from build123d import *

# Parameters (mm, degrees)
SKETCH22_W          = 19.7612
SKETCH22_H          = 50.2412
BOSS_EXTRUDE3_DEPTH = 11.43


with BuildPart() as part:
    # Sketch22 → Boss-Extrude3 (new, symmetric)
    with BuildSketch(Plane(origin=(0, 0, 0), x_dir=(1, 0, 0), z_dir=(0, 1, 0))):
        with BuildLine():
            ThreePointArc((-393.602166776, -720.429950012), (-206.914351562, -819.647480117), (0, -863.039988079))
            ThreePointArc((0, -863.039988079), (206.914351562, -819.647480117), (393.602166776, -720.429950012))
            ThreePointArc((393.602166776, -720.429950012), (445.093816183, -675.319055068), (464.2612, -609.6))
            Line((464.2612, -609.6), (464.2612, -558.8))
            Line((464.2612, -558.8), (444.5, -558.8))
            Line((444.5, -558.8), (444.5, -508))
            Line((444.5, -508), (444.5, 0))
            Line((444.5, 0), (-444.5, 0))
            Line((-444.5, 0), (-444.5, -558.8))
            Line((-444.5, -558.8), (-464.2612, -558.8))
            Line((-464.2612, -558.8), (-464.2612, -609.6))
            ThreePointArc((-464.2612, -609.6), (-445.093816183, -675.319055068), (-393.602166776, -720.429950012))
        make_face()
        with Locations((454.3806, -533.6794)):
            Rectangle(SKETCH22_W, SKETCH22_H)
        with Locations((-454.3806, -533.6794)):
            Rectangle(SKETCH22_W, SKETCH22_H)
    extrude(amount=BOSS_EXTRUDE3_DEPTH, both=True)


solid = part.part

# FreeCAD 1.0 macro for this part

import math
import FreeCAD as App
import Part
import Sketcher
from FreeCAD import Vector
Q = App.Units.Quantity

doc = App.newDocument("Part")
body = doc.addObject("PartDesign::Body", "Body")

# Sketch on XZ plane
sketch1 = body.newObject("Sketcher::SketchObject", "Sketch")
sketch1.AttachmentSupport = (doc.getObject("XZ_Plane"), [""])
sketch1.MapMode = "FlatFace"
sketch1.addGeometry([
    Part.ArcOfCircle(Part.Circle(Vector(50, 112, 0), Vector(0, 0, 1), 753), math.radians(94), math.radians(126)),  # 0
    Part.ArcOfCircle(Part.Circle(Vector(-50, 112, 0), Vector(0, 0, 1), 753), math.radians(54), math.radians(86)),  # 1
    Part.ArcOfCircle(Part.Circle(Vector(342, 610, 0), Vector(0, 0, 1), 122), math.radians(0), math.radians(65)),  # 2
    Part.LineSegment(Vector(464, 610, 0), Vector(464, 509, 0)),  # 3
    Part.LineSegment(Vector(464, 509, 0), Vector(444, 509, 0)),  # 4
    Part.LineSegment(Vector(444, 509, 0), Vector(444, 0, 0)),  # 5
    Part.LineSegment(Vector(444, 0, 0), Vector(-444, 0, 0)),  # 6
    Part.LineSegment(Vector(-444, 0, 0), Vector(-444, 509, 0)),  # 7
    Part.LineSegment(Vector(-444, 509, 0), Vector(-464, 509, 0)),  # 8
    Part.LineSegment(Vector(-464, 509, 0), Vector(-464, 610, 0)),  # 9
    Part.ArcOfCircle(Part.Circle(Vector(-342, 610, 0), Vector(0, 0, 1), 122), math.radians(115), math.radians(180)),  # 10
], False)
sketch1.addConstraint([
    Sketcher.Constraint("Coincident", 0, 1, 1, 2),
    Sketcher.Constraint("Coincident", 1, 1, 2, 2),
    Sketcher.Constraint("Tangent", 2, 1, 3, 1),
    Sketcher.Constraint("Coincident", 3, 2, 4, 1),
    Sketcher.Constraint("Coincident", 4, 2, 5, 1),
    Sketcher.Constraint("Coincident", 5, 2, 6, 1),
    Sketcher.Constraint("Coincident", 6, 2, 7, 1),
    Sketcher.Constraint("Coincident", 7, 2, 8, 1),
    Sketcher.Constraint("Coincident", 8, 2, 9, 1),
    Sketcher.Constraint("Tangent", 9, 2, 10, 2),
    Sketcher.Constraint("Coincident", 10, 1, 0, 2),
    Sketcher.Constraint("Vertical", 3),
    Sketcher.Constraint("Horizontal", 4),
    Sketcher.Constraint("Vertical", 5),
    Sketcher.Constraint("Horizontal", 6),
    Sketcher.Constraint("Vertical", 7),
    Sketcher.Constraint("Horizontal", 8),
    Sketcher.Constraint("Vertical", 9),
    Sketcher.Constraint("Equal", 0, 1),
    Sketcher.Constraint("Equal", 2, 10),
    Sketcher.Constraint("Symmetric", 5, 2, 6, 2, -1, 1),
    Sketcher.Constraint("Symmetric", 0, 3, 1, 3, -2),
    Sketcher.Constraint("Symmetric", 2, 3, 10, 3, -2),
    Sketcher.Constraint("Horizontal", 4, 2, 7, 2),
    Sketcher.Constraint("DistanceX", 6, 2, 6, 1, Q("35 in")),
    Sketcher.Constraint("DistanceY", -1, 1, 2, 3, Q("24 in")),
    Sketcher.Constraint("DistanceX", 4, 2, 4, 1, Q("0.778 in")),
    Sketcher.Constraint("DistanceY", 3, 2, 3, 1, Q("3.978 in")),
    Sketcher.Constraint("Radius", 2, 122.24889),
    Sketcher.Constraint("Radius", 0, 752.765887),
    Sketcher.Constraint("DistanceY", 0, 3, 1, 1, Q("23.9576999 in")),
    Sketcher.Constraint("DistanceY", -1, 1, 0, 3, 111.904372),
])
pad1 = body.newObject("PartDesign::Pad", "Pad")
pad1.Profile = sketch1
pad1.Length = Q("0.9 in")
pad1.Midplane = True

doc.recompute()
